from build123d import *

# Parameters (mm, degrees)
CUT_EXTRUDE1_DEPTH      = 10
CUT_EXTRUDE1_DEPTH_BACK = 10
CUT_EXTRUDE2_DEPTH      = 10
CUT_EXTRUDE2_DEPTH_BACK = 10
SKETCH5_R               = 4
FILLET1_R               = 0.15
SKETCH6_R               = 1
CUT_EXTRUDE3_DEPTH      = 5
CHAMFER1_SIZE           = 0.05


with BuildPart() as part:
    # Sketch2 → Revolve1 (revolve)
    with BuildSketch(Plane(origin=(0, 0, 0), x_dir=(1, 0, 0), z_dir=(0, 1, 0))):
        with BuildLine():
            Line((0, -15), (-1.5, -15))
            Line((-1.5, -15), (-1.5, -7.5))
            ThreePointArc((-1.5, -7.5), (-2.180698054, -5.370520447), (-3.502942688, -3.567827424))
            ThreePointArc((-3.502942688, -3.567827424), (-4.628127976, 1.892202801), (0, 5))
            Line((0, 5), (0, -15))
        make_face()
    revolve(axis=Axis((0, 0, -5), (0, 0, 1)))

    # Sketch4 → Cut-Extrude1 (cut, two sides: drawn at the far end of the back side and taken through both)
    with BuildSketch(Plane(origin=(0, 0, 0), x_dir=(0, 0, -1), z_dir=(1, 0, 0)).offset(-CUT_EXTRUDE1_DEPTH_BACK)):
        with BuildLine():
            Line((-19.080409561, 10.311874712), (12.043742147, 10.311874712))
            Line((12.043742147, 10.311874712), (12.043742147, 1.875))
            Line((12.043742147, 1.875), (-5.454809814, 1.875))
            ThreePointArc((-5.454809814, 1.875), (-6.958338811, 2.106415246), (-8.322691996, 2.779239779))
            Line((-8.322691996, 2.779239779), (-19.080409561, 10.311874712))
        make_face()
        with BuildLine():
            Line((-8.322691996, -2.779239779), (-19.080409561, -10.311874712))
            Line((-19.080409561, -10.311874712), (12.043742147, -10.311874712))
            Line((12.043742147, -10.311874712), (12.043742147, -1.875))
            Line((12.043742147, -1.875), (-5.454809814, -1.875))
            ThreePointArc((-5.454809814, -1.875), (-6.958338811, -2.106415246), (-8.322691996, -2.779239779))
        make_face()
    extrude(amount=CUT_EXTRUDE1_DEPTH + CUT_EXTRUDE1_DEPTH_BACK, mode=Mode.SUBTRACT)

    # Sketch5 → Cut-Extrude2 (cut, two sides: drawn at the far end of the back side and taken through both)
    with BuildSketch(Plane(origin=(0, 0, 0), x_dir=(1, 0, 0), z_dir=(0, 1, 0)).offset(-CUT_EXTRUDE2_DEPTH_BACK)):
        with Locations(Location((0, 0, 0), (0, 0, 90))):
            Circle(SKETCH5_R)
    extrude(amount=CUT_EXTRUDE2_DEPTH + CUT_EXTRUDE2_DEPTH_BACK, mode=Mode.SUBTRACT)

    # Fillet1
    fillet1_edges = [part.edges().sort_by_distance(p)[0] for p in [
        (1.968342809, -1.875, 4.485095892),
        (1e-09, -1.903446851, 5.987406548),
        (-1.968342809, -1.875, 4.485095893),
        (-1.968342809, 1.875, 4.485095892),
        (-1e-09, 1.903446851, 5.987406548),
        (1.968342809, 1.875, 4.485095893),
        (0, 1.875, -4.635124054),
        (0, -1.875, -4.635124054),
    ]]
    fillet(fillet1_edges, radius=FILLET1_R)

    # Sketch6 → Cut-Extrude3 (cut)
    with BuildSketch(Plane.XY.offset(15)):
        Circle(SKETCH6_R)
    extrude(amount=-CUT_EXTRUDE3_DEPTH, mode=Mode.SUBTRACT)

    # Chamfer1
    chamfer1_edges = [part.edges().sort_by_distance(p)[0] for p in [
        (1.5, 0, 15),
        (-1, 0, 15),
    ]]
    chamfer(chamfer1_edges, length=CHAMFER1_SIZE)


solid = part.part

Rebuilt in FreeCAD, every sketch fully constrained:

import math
import FreeCAD as App
import Part
import Sketcher
from FreeCAD import Vector
Q = App.Units.Quantity


def edges_at(feature, points):
    """Names of the edges that pass closest to the given points."""
    edges = feature.Shape.Edges
    near = lambda p: min(range(len(edges)), key=lambda i: edges[i].distToShape(Part.Vertex(*p))[0])
    return sorted({f"Edge{near(p) + 1}" for p in points})

doc = App.newDocument("Part")
body = doc.addObject("PartDesign::Body", "Body")

sketch1 = body.newObject("Sketcher::SketchObject", "Sketch")
sketch1.AttachmentSupport = (doc.getObject("XZ_Plane"), [""])
sketch1.MapMode = "FlatFace"
sketch1.addGeometry(Part.LineSegment(Vector(-1.5, 15, 0), Vector(0, 15, 0)), False)
sketch1.addGeometry(Part.LineSegment(Vector(0, 15, 0), Vector(0, -5, 0)), False)
sketch1.addGeometry(Part.ArcOfCircle(Part.Circle(Vector(0, 0, 0), Vector(0, 0, 1), 5), math.radians(134), math.radians(270)), False)
sketch1.addGeometry(Part.ArcOfCircle(Part.Circle(Vector(-8.4, 8.5, 0), Vector(0, 0, 1), 6.9), math.radians(-46), math.radians(-8)), False)
sketch1.addGeometry(Part.LineSegment(Vector(-1.5, 7.5, 0), Vector(-1.5, 15, 0)), False)
sketch1.addConstraint(Sketcher.Constraint("Coincident", 0, 2, 1, 1))
sketch1.addConstraint(Sketcher.Constraint("Coincident", 1, 2, 2, 2))
sketch1.addConstraint(Sketcher.Constraint("Tangent", 2, 1, 3, 1))
sketch1.addConstraint(Sketcher.Constraint("Coincident", 3, 2, 4, 1))
sketch1.addConstraint(Sketcher.Constraint("Coincident", 4, 2, 0, 1))
sketch1.addConstraint(Sketcher.Constraint("Horizontal", 0))
sketch1.addConstraint(Sketcher.Constraint("Vertical", 1))
sketch1.addConstraint(Sketcher.Constraint("Vertical", 4))
sketch1.addConstraint(Sketcher.Constraint("Coincident", 2, 3, -1, 1))
sketch1.addConstraint(Sketcher.Constraint("PointOnObject", 0, 2, -2))
sketch1.addConstraint(Sketcher.Constraint("Radius", 2, 5.0))
sketch1.addConstraint(Sketcher.Constraint("DistanceY", 1, 2, 1, 1, 20.0))
sketch1.addConstraint(Sketcher.Constraint("DistanceX", 0, 1, 0, 2, 1.5))
sketch1.addConstraint(Sketcher.Constraint("DistanceY", 4, 1, 4, 2, 7.5))
sketch1.addConstraint(Sketcher.Constraint("Radius", 3, 6.941904))
revolution = body.newObject("PartDesign::Revolution", "Revolution")
revolution.Profile = sketch1
revolution.ReferenceAxis = (sketch1, ["V_Axis"])
revolution.Angle = 360

sketch2 = body.newObject("Sketcher::SketchObject", "Sketch001")
sketch2.AttachmentSupport = (doc.getObject("YZ_Plane"), [""])
sketch2.MapMode = "FlatFace"
sketch2.addGeometry(Part.LineSegment(Vector(10.3, -12, 0), Vector(10.3, 19.1, 0)), False)
sketch2.addGeometry(Part.LineSegment(Vector(10.3, 19.1, 0), Vector(2.8, 8.3, 0)), False)
sketch2.addGeometry(Part.ArcOfCircle(Part.Circle(Vector(6.9, 5.5, 0), Vector(0, 0, 1), 5), math.radians(145), math.radians(180)), False)
sketch2.addGeometry(Part.LineSegment(Vector(1.9, 5.5, 0), Vector(1.9, -12, 0)), False)
sketch2.addGeometry(Part.LineSegment(Vector(1.9, -12, 0), Vector(10.3, -12, 0)), False)
sketch2.addGeometry(Part.LineSegment(Vector(-2.8, 8.3, 0), Vector(-10.3, 19.1, 0)), False)
sketch2.addGeometry(Part.LineSegment(Vector(-10.3, 19.1, 0), Vector(-10.3, -12, 0)), False)
sketch2.addGeometry(Part.LineSegment(Vector(-10.3, -12, 0), Vector(-1.9, -12, 0)), False)
sketch2.addGeometry(Part.LineSegment(Vector(-1.9, -12, 0), Vector(-1.9, 5.5, 0)), False)
sketch2.addGeometry(Part.ArcOfCircle(Part.Circle(Vector(-6.9, 5.5, 0), Vector(0, 0, 1), 5), math.radians(0), math.radians(35)), False)
sketch2.addConstraint(Sketcher.Constraint("Coincident", 0, 2, 1, 1))
sketch2.addConstraint(Sketcher.Constraint("Tangent", 1, 2, 2, 1))
sketch2.addConstraint(Sketcher.Constraint("Tangent", 2, 2, 3, 1))
sketch2.addConstraint(Sketcher.Constraint("Coincident", 3, 2, 4, 1))
sketch2.addConstraint(Sketcher.Constraint("Coincident", 4, 2, 0, 1))
sketch2.addConstraint(Sketcher.Constraint("Coincident", 5, 2, 6, 1))
sketch2.addConstraint(Sketcher.Constraint("Coincident", 6, 2, 7, 1))
sketch2.addConstraint(Sketcher.Constraint("Coincident", 7, 2, 8, 1))
sketch2.addConstraint(Sketcher.Constraint("Tangent", 8, 2, 9, 1))
sketch2.addConstraint(Sketcher.Constraint("Tangent", 9, 2, 5, 1))
sketch2.addConstraint(Sketcher.Constraint("Vertical", 0))
sketch2.addConstraint(Sketcher.Constraint("Vertical", 3))
sketch2.addConstraint(Sketcher.Constraint("Horizontal", 4))
sketch2.addConstraint(Sketcher.Constraint("Vertical", 6))
sketch2.addConstraint(Sketcher.Constraint("Horizontal", 7))
sketch2.addConstraint(Sketcher.Constraint("Vertical", 8))
sketch2.addConstraint(Sketcher.Constraint("Equal", 2, 9))
sketch2.addConstraint(Sketcher.Constraint("Symmetric", 2, 3, 9, 3, -2))
sketch2.addConstraint(Sketcher.Constraint("Symmetric", 0, 2, 5, 2, -2))
sketch2.addConstraint(Sketcher.Constraint("Horizontal", 4, 2, 6, 2))
sketch2.addConstraint(Sketcher.Constraint("Radius", 2, 5.0))
sketch2.addConstraint(Sketcher.Constraint("Angle", 1, Q("-125 deg")))
sketch2.addConstraint(Sketcher.Constraint("DistanceX", 9, 3, 2, 3, 13.75))
sketch2.addConstraint(Sketcher.Constraint("DistanceY", 0, 1, 0, 2, 31.124152))
sketch2.addConstraint(Sketcher.Constraint("DistanceY", 3, 2, 3, 1, 17.498552))
sketch2.addConstraint(Sketcher.Constraint("DistanceY", -1, 1, 2, 3, 5.45481))
pocket1 = body.newObject("PartDesign::Pocket", "Pocket")
pocket1.Profile = sketch2
pocket1.Type = "ThroughAll"
pocket1.Midplane = True

sketch3 = body.newObject("Sketcher::SketchObject", "Sketch002")
sketch3.AttachmentSupport = (doc.getObject("XZ_Plane"), [""])
sketch3.MapMode = "FlatFace"
sketch3.addGeometry(Part.Circle(Vector(0, 0, 0), Vector(0, 0, 1), 4), False)
sketch3.addConstraint(Sketcher.Constraint("Coincident", 0, 3, -1, 1))
sketch3.addConstraint(Sketcher.Constraint("Diameter", 0, 8.0))
pocket2 = body.newObject("PartDesign::Pocket", "Pocket001")
pocket2.Profile = sketch3
pocket2.Type = "ThroughAll"
pocket2.Midplane = True
doc.recompute()

fillet = body.newObject("PartDesign::Fillet", "Fillet")
fillet.Base = (pocket2, edges_at(pocket2, [
    (1.968, -1.875, 4.485),
    (0, -1.903, 5.987),
    (-1.968, -1.875, 4.485),
    (-1.968, 1.875, 4.485),
    (0, 1.903, 5.987),
    (1.968, 1.875, 4.485),
    (0, 1.875, -4.635),
    (0, -1.875, -4.635),
]))
fillet.Radius = 0.15

sketch4 = body.newObject("Sketcher::SketchObject", "Sketch003")
sketch4.AttachmentSupport = (doc.getObject("XY_Plane"), [""])
sketch4.MapMode = "FlatFace"
sketch4.AttachmentOffset = App.Placement(Vector(0, 0, 15), App.Rotation())
sketch4.addGeometry(Part.Circle(Vector(0, 0, 0), Vector(0, 0, 1), 1), False)
sketch4.addConstraint(Sketcher.Constraint("Coincident", 0, 3, -1, 1))
sketch4.addConstraint(Sketcher.Constraint("Diameter", 0, 2.0))
pocket3 = body.newObject("PartDesign::Pocket", "Pocket002")
pocket3.Profile = sketch4
pocket3.Length = 5
doc.recompute()

chamfer = body.newObject("PartDesign::Chamfer", "Chamfer")
chamfer.Base = (pocket3, edges_at(pocket3, [(1.5, 0, 15), (-1, 0, 15)]))
chamfer.Size = 0.05

doc.recompute()
